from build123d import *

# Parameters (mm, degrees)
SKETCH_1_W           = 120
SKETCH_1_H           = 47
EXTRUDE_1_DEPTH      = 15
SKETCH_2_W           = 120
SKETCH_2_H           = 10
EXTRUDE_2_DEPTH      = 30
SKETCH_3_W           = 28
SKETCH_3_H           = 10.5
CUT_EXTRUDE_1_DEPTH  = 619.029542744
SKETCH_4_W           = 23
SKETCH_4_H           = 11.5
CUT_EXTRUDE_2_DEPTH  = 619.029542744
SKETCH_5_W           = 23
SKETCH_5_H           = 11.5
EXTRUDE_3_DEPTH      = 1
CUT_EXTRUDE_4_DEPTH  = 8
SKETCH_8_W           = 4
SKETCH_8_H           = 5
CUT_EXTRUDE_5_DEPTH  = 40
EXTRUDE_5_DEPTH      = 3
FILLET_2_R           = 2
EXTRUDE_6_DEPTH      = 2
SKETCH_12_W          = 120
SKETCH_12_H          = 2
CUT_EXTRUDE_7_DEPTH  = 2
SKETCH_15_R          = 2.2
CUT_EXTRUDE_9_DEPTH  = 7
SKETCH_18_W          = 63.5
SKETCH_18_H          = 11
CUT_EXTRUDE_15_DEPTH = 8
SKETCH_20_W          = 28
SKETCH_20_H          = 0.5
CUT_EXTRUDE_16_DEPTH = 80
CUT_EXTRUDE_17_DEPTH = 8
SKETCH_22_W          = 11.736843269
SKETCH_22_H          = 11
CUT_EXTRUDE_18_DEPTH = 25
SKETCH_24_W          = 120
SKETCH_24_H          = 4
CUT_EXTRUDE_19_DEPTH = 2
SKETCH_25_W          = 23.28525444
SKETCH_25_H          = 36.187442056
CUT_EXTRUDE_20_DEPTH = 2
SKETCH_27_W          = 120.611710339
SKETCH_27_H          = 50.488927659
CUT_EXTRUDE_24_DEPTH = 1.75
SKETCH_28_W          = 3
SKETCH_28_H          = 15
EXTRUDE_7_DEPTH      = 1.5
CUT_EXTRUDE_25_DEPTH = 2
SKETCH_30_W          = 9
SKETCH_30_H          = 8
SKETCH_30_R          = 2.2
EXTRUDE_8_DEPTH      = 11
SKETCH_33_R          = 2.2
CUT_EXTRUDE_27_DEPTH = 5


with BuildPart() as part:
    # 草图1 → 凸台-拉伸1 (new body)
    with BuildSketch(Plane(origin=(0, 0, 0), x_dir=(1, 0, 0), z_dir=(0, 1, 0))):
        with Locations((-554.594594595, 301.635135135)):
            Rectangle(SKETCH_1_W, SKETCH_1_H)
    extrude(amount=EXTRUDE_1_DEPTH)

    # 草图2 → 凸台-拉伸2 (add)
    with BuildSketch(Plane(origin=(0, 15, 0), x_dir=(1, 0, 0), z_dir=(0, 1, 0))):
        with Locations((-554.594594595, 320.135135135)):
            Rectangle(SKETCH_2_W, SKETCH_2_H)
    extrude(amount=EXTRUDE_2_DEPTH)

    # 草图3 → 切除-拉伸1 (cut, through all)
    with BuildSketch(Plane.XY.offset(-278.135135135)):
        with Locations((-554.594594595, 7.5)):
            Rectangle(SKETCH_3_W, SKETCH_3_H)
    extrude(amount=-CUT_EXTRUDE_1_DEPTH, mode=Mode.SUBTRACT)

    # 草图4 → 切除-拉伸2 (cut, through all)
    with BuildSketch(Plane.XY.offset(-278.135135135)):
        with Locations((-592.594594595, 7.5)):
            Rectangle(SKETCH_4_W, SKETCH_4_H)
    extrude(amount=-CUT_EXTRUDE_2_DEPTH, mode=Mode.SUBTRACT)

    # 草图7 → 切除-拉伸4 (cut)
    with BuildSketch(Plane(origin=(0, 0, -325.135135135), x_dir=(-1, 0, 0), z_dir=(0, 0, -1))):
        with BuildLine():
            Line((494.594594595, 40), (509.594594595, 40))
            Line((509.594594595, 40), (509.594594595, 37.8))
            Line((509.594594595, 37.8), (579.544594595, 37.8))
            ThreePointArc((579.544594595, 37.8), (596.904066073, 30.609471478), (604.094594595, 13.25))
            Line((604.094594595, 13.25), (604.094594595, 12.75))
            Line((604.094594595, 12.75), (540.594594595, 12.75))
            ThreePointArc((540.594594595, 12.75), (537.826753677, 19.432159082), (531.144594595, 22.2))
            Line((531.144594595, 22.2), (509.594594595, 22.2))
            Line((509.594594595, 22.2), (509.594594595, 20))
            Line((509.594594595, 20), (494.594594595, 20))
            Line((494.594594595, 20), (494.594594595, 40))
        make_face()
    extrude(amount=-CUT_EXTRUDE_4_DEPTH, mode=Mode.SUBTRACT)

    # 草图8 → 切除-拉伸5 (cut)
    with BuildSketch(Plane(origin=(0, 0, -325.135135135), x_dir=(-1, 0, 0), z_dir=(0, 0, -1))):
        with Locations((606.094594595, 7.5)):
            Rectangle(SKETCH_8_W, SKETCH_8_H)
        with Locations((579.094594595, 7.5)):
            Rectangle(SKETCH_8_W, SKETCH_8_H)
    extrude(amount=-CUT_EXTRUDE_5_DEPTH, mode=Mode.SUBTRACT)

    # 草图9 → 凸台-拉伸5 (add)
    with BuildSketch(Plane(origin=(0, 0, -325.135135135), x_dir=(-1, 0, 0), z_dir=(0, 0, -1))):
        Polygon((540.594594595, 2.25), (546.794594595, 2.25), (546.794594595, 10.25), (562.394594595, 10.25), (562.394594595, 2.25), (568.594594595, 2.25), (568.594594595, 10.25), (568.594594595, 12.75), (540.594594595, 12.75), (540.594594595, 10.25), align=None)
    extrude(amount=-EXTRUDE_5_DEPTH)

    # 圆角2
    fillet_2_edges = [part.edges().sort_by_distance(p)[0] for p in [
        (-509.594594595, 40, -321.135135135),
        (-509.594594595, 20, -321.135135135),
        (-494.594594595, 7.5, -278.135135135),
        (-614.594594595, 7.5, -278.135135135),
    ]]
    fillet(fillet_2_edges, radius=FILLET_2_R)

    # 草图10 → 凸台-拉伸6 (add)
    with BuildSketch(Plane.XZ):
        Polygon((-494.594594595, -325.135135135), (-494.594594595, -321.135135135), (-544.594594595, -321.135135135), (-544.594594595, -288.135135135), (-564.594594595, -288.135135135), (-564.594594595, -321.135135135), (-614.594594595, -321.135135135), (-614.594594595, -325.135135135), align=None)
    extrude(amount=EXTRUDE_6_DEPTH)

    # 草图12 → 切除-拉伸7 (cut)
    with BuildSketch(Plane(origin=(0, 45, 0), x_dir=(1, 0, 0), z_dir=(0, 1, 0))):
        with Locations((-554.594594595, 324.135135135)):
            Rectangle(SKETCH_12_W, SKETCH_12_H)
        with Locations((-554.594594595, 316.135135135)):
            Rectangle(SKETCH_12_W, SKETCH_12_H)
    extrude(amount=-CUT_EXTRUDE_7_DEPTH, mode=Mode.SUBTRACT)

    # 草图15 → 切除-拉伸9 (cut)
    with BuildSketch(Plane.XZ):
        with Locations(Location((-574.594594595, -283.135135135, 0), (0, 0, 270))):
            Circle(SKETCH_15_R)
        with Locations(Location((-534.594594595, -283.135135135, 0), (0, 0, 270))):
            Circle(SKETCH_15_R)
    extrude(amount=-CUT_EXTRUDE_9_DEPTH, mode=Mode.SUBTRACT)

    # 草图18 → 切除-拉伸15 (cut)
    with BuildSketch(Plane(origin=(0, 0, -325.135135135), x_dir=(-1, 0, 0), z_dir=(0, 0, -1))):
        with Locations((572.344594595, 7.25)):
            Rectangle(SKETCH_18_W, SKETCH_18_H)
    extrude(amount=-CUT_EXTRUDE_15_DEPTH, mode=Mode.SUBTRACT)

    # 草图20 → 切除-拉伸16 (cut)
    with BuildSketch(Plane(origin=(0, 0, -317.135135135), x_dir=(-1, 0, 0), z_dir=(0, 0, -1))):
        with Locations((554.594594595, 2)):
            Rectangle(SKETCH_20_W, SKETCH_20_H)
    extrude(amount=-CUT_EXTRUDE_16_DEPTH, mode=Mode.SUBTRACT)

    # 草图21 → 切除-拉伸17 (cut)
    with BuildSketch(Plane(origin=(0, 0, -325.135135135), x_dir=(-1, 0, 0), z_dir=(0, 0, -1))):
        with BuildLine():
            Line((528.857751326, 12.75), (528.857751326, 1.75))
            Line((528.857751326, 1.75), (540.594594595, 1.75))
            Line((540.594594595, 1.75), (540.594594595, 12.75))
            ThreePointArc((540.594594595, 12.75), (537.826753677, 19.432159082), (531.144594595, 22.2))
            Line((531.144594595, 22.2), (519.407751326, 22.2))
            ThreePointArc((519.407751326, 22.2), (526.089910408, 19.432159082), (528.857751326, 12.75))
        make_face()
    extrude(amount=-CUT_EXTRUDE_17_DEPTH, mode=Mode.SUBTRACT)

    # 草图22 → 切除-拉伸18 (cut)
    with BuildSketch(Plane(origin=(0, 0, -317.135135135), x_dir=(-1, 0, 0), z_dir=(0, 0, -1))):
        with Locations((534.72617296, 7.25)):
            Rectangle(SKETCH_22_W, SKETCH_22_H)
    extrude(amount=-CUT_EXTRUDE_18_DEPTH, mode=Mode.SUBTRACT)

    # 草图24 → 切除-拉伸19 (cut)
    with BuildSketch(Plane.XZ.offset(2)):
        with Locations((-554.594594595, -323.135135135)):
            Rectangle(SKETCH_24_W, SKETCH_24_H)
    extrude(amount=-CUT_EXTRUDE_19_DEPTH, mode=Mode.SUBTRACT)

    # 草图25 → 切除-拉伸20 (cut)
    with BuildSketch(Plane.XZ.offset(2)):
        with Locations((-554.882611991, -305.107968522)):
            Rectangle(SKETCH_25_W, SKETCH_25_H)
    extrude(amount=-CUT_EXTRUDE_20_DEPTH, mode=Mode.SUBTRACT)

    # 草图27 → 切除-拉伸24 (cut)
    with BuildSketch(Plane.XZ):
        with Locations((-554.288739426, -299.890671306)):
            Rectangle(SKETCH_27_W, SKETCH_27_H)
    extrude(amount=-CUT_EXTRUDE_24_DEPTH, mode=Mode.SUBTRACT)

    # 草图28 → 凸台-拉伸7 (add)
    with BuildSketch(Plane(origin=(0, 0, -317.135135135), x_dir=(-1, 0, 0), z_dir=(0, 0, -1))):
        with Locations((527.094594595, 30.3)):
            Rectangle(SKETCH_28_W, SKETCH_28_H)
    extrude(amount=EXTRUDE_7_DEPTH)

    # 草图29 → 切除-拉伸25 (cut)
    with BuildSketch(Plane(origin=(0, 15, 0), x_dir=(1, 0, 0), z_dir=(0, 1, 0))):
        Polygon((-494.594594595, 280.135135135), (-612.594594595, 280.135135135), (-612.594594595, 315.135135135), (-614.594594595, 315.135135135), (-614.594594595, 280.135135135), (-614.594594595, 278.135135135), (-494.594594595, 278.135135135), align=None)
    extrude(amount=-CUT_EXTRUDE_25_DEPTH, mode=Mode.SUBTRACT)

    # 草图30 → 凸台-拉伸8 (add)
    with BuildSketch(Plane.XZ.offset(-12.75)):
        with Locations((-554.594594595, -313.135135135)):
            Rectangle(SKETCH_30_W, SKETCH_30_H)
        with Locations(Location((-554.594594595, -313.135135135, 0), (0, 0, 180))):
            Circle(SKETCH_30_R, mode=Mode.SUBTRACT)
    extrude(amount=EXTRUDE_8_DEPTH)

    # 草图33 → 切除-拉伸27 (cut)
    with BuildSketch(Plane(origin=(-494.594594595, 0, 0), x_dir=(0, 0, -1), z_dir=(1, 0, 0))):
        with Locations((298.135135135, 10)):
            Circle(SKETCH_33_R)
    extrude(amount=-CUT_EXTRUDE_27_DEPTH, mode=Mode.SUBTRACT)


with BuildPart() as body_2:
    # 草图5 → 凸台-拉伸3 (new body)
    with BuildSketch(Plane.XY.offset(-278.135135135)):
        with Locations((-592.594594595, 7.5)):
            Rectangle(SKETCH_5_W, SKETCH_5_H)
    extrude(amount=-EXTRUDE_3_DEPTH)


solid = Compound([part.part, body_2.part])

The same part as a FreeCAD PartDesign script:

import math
import FreeCAD as App
import Part
import Sketcher

V = App.Vector


def edges_at(feature, points):
    """Names of the edges that pass closest to the given points."""
    edges = feature.Shape.Edges
    near = lambda p: min(range(len(edges)), key=lambda i: edges[i].distToShape(Part.Vertex(*p))[0])
    return sorted({f"Edge{near(p) + 1}" for p in points})

doc = App.newDocument("Part")
body = doc.addObject("PartDesign::Body", "Body")

sketch1 = body.newObject("Sketcher::SketchObject", "Sketch")
sketch1.AttachmentSupport = (doc.getObject("XZ_Plane"), [""])
sketch1.MapMode = "FlatFace"
sketch1.addGeometry(Part.LineSegment(V(-615, -325, 0), V(-615, -278, 0)), False)
sketch1.addGeometry(Part.LineSegment(V(-615, -278, 0), V(-495, -278, 0)), False)
sketch1.addGeometry(Part.LineSegment(V(-495, -278, 0), V(-495, -325, 0)), False)
sketch1.addGeometry(Part.LineSegment(V(-495, -325, 0), V(-615, -325, 0)), False)
sketch1.addConstraint(Sketcher.Constraint("Coincident", 0, 2, 1, 1))
sketch1.addConstraint(Sketcher.Constraint("Coincident", 1, 2, 2, 1))
sketch1.addConstraint(Sketcher.Constraint("Coincident", 2, 2, 3, 1))
sketch1.addConstraint(Sketcher.Constraint("Coincident", 3, 2, 0, 1))
sketch1.addConstraint(Sketcher.Constraint("Vertical", 0))
sketch1.addConstraint(Sketcher.Constraint("Horizontal", 1))
sketch1.addConstraint(Sketcher.Constraint("Vertical", 2))
sketch1.addConstraint(Sketcher.Constraint("Horizontal", 3))
sketch1.addConstraint(Sketcher.Constraint("DistanceX", 1, 1, 1, 2, 120.0))
sketch1.addConstraint(Sketcher.Constraint("DistanceY", 0, 1, 0, 2, 47.0))
sketch1.addConstraint(Sketcher.Constraint("DistanceX", 0, 2, -1, 1, 614.594595))
sketch1.addConstraint(Sketcher.Constraint("DistanceY", 0, 2, -1, 1, 278.135135))
pad1 = body.newObject("PartDesign::Pad", "Pad")
pad1.Profile = sketch1
pad1.Length = 15
pad1.Reversed = True

sketch2 = body.newObject("Sketcher::SketchObject", "Sketch001")
sketch2.AttachmentSupport = (doc.getObject("XZ_Plane"), [""])
sketch2.MapMode = "FlatFace"
sketch2.AttachmentOffset = App.Placement(V(0, 0, -15), App.Rotation())
sketch2.addGeometry(Part.LineSegment(V(-615, -325, 0), V(-615, -315, 0)), False)
sketch2.addGeometry(Part.LineSegment(V(-615, -315, 0), V(-495, -315, 0)), False)
sketch2.addGeometry(Part.LineSegment(V(-495, -315, 0), V(-495, -325, 0)), False)
sketch2.addGeometry(Part.LineSegment(V(-495, -325, 0), V(-615, -325, 0)), False)
sketch2.addConstraint(Sketcher.Constraint("Coincident", 0, 2, 1, 1))
sketch2.addConstraint(Sketcher.Constraint("Coincident", 1, 2, 2, 1))
sketch2.addConstraint(Sketcher.Constraint("Coincident", 2, 2, 3, 1))
sketch2.addConstraint(Sketcher.Constraint("Coincident", 3, 2, 0, 1))
sketch2.addConstraint(Sketcher.Constraint("Vertical", 0))
sketch2.addConstraint(Sketcher.Constraint("Horizontal", 1))
sketch2.addConstraint(Sketcher.Constraint("Vertical", 2))
sketch2.addConstraint(Sketcher.Constraint("Horizontal", 3))
sketch2.addConstraint(Sketcher.Constraint("DistanceX", 1, 1, 1, 2, 120.0))
sketch2.addConstraint(Sketcher.Constraint("DistanceY", 0, 1, 0, 2, 10.0))
sketch2.addConstraint(Sketcher.Constraint("DistanceX", 0, 2, -1, 1, 614.594595))
sketch2.addConstraint(Sketcher.Constraint("DistanceY", 0, 2, -1, 1, 315.135135))
pad2 = body.newObject("PartDesign::Pad", "Pad001")
pad2.Profile = sketch2
pad2.Length = 30
pad2.Reversed = True

sketch3 = body.newObject("Sketcher::SketchObject", "Sketch002")
sketch3.AttachmentSupport = (doc.getObject("XY_Plane"), [""])
sketch3.MapMode = "FlatFace"
sketch3.AttachmentOffset = App.Placement(V(0, 0, -278.135135), App.Rotation())
sketch3.addGeometry(Part.LineSegment(V(-569, 13, 0), V(-569, 2, 0)), False)
sketch3.addGeometry(Part.LineSegment(V(-569, 2, 0), V(-541, 2, 0)), False)
sketch3.addGeometry(Part.LineSegment(V(-541, 2, 0), V(-541, 13, 0)), False)
sketch3.addGeometry(Part.LineSegment(V(-541, 13, 0), V(-569, 13, 0)), False)
sketch3.addConstraint(Sketcher.Constraint("Coincident", 0, 2, 1, 1))
sketch3.addConstraint(Sketcher.Constraint("Coincident", 1, 2, 2, 1))
sketch3.addConstraint(Sketcher.Constraint("Coincident", 2, 2, 3, 1))
sketch3.addConstraint(Sketcher.Constraint("Coincident", 3, 2, 0, 1))
sketch3.addConstraint(Sketcher.Constraint("Vertical", 0))
sketch3.addConstraint(Sketcher.Constraint("Horizontal", 1))
sketch3.addConstraint(Sketcher.Constraint("Vertical", 2))
sketch3.addConstraint(Sketcher.Constraint("Horizontal", 3))
sketch3.addConstraint(Sketcher.Constraint("DistanceX", 1, 1, 1, 2, 28.0))
sketch3.addConstraint(Sketcher.Constraint("DistanceY", 0, 2, 0, 1, 10.5))
sketch3.addConstraint(Sketcher.Constraint("DistanceY", -1, 1, 0, 2, 2.25))
sketch3.addConstraint(Sketcher.Constraint("DistanceX", 0, 2, -1, 1, 568.594595))
pocket1 = body.newObject("PartDesign::Pocket", "Pocket")
pocket1.Profile = sketch3
pocket1.Type = "ThroughAll"

sketch4 = body.newObject("Sketcher::SketchObject", "Sketch003")
sketch4.AttachmentSupport = (doc.getObject("XY_Plane"), [""])
sketch4.MapMode = "FlatFace"
sketch4.AttachmentOffset = App.Placement(V(0, 0, -278.135135), App.Rotation())
sketch4.addGeometry(Part.LineSegment(V(-604, 13, 0), V(-604, 2, 0)), False)
sketch4.addGeometry(Part.LineSegment(V(-604, 2, 0), V(-581, 2, 0)), False)
sketch4.addGeometry(Part.LineSegment(V(-581, 2, 0), V(-581, 13, 0)), False)
sketch4.addGeometry(Part.LineSegment(V(-581, 13, 0), V(-604, 13, 0)), False)
sketch4.addConstraint(Sketcher.Constraint("Coincident", 0, 2, 1, 1))
sketch4.addConstraint(Sketcher.Constraint("Coincident", 1, 2, 2, 1))
sketch4.addConstraint(Sketcher.Constraint("Coincident", 2, 2, 3, 1))
sketch4.addConstraint(Sketcher.Constraint("Coincident", 3, 2, 0, 1))
sketch4.addConstraint(Sketcher.Constraint("Vertical", 0))
sketch4.addConstraint(Sketcher.Constraint("Horizontal", 1))
sketch4.addConstraint(Sketcher.Constraint("Vertical", 2))
sketch4.addConstraint(Sketcher.Constraint("Horizontal", 3))
sketch4.addConstraint(Sketcher.Constraint("DistanceX", 1, 1, 1, 2, 23.0))
sketch4.addConstraint(Sketcher.Constraint("DistanceY", 0, 2, 0, 1, 11.5))
sketch4.addConstraint(Sketcher.Constraint("DistanceY", -1, 1, 0, 2, 1.75))
sketch4.addConstraint(Sketcher.Constraint("DistanceX", 0, 2, -1, 1, 604.094595))
pocket2 = body.newObject("PartDesign::Pocket", "Pocket001")
pocket2.Profile = sketch4
pocket2.Type = "ThroughAll"

sketch5 = body.newObject("Sketcher::SketchObject", "Sketch004")
sketch5.AttachmentSupport = (doc.getObject("XY_Plane"), [""])
sketch5.MapMode = "FlatFace"
sketch5.AttachmentOffset = App.Placement(V(0, 0, -325.135135), App.Rotation())
sketch5.addGeometry(Part.LineSegment(V(-509.6, 40, 0), V(-494.6, 40, 0)), False)
sketch5.addGeometry(Part.LineSegment(V(-494.6, 40, 0), V(-494.6, 20, 0)), False)
sketch5.addGeometry(Part.LineSegment(V(-494.6, 20, 0), V(-509.6, 20, 0)), False)
sketch5.addGeometry(Part.LineSegment(V(-509.6, 20, 0), V(-509.6, 22.2, 0)), False)
sketch5.addGeometry(Part.LineSegment(V(-509.6, 22.2, 0), V(-531.1, 22.2, 0)), False)
sketch5.addGeometry(Part.ArcOfCircle(Part.Circle(V(-531.1, 12.7, 0), V(0, 0, 1), 9.5), math.radians(90), math.radians(180)), False)
sketch5.addGeometry(Part.LineSegment(V(-540.6, 12.8, 0), V(-604.1, 12.8, 0)), False)
sketch5.addGeometry(Part.LineSegment(V(-604.1, 12.8, 0), V(-604.1, 13.2, 0)), False)
sketch5.addGeometry(Part.ArcOfCircle(Part.Circle(V(-579.5, 13.2, 0), V(0, 0, 1), 24.6), math.radians(90), math.radians(180)), False)
sketch5.addGeometry(Part.LineSegment(V(-579.5, 37.8, 0), V(-509.6, 37.8, 0)), False)
sketch5.addGeometry(Part.LineSegment(V(-509.6, 37.8, 0), V(-509.6, 40, 0)), False)
sketch5.addConstraint(Sketcher.Constraint("Coincident", 0, 2, 1, 1))
sketch5.addConstraint(Sketcher.Constraint("Coincident", 1, 2, 2, 1))
sketch5.addConstraint(Sketcher.Constraint("Coincident", 2, 2, 3, 1))
sketch5.addConstraint(Sketcher.Constraint("Coincident", 3, 2, 4, 1))
sketch5.addConstraint(Sketcher.Constraint("Tangent", 4, 2, 5, 1))
sketch5.addConstraint(Sketcher.Constraint("Coincident", 5, 2, 6, 1))
sketch5.addConstraint(Sketcher.Constraint("Coincident", 6, 2, 7, 1))
sketch5.addConstraint(Sketcher.Constraint("Tangent", 7, 2, 8, 2))
sketch5.addConstraint(Sketcher.Constraint("Tangent", 8, 1, 9, 1))
sketch5.addConstraint(Sketcher.Constraint("Coincident", 9, 2, 10, 1))
sketch5.addConstraint(Sketcher.Constraint("Coincident", 10, 2, 0, 1))
sketch5.addConstraint(Sketcher.Constraint("Horizontal", 0))
sketch5.addConstraint(Sketcher.Constraint("Vertical", 1))
sketch5.addConstraint(Sketcher.Constraint("Horizontal", 2))
sketch5.addConstraint(Sketcher.Constraint("Vertical", 3))
sketch5.addConstraint(Sketcher.Constraint("Horizontal", 4))
sketch5.addConstraint(Sketcher.Constraint("Horizontal", 6))
sketch5.addConstraint(Sketcher.Constraint("Vertical", 7))
sketch5.addConstraint(Sketcher.Constraint("Horizontal", 9))
sketch5.addConstraint(Sketcher.Constraint("Vertical", 10))
sketch5.addConstraint(Sketcher.Constraint("Vertical", 3, 2, 9, 2))
sketch5.addConstraint(Sketcher.Constraint("Equal", 3, 10))
sketch5.addConstraint(Sketcher.Constraint("DistanceX", 0, 1, 0, 2, 15.0))
sketch5.addConstraint(Sketcher.Constraint("DistanceY", 1, 2, 1, 1, 20.0))
sketch5.addConstraint(Sketcher.Constraint("Radius", 5, 9.45))
sketch5.addConstraint(Sketcher.Constraint("Radius", 8, 24.55))
sketch5.addConstraint(Sketcher.Constraint("DistanceX", 6, 2, 6, 1, 63.5))
sketch5.addConstraint(Sketcher.Constraint("DistanceY", 3, 1, 3, 2, 2.2))
sketch5.addConstraint(Sketcher.Constraint("DistanceY", 7, 1, 7, 2, 0.5))
sketch5.addConstraint(Sketcher.Constraint("DistanceY", -1, 1, 0, 2, 40.0))
sketch5.addConstraint(Sketcher.Constraint("DistanceX", 5, 2, 2, 2, 31.0))
sketch5.addConstraint(Sketcher.Constraint("DistanceX", 5, 3, -1, 1, 531.144595))
pocket3 = body.newObject("PartDesign::Pocket", "Pocket002")
pocket3.Profile = sketch5
pocket3.Length = 8
pocket3.Reversed = True

sketch6 = body.newObject("Sketcher::SketchObject", "Sketch005")
sketch6.AttachmentSupport = (doc.getObject("XY_Plane"), [""])
sketch6.MapMode = "FlatFace"
sketch6.AttachmentOffset = App.Placement(V(0, 0, -325.135135), App.Rotation())
sketch6.addGeometry(Part.LineSegment(V(-604.1, 10, 0), V(-604.1, 5, 0)), False)
sketch6.addGeometry(Part.LineSegment(V(-604.1, 5, 0), V(-608.1, 5, 0)), False)
sketch6.addGeometry(Part.LineSegment(V(-608.1, 5, 0), V(-608.1, 10, 0)), False)
sketch6.addGeometry(Part.LineSegment(V(-608.1, 10, 0), V(-604.1, 10, 0)), False)
sketch6.addGeometry(Part.LineSegment(V(-577.1, 10, 0), V(-577.1, 5, 0)), False)
sketch6.addGeometry(Part.LineSegment(V(-577.1, 5, 0), V(-581.1, 5, 0)), False)
sketch6.addGeometry(Part.LineSegment(V(-581.1, 5, 0), V(-581.1, 10, 0)), False)
sketch6.addGeometry(Part.LineSegment(V(-581.1, 10, 0), V(-577.1, 10, 0)), False)
sketch6.addConstraint(Sketcher.Constraint("Coincident", 0, 2, 1, 1))
sketch6.addConstraint(Sketcher.Constraint("Coincident", 1, 2, 2, 1))
sketch6.addConstraint(Sketcher.Constraint("Coincident", 2, 2, 3, 1))
sketch6.addConstraint(Sketcher.Constraint("Coincident", 3, 2, 0, 1))
sketch6.addConstraint(Sketcher.Constraint("Coincident", 4, 2, 5, 1))
sketch6.addConstraint(Sketcher.Constraint("Coincident", 5, 2, 6, 1))
sketch6.addConstraint(Sketcher.Constraint("Coincident", 6, 2, 7, 1))
sketch6.addConstraint(Sketcher.Constraint("Coincident", 7, 2, 4, 1))
sketch6.addConstraint(Sketcher.Constraint("Vertical", 0))
sketch6.addConstraint(Sketcher.Constraint("Horizontal", 1))
sketch6.addConstraint(Sketcher.Constraint("Vertical", 2))
sketch6.addConstraint(Sketcher.Constraint("Horizontal", 3))
sketch6.addConstraint(Sketcher.Constraint("Vertical", 4))
sketch6.addConstraint(Sketcher.Constraint("Horizontal", 5))
sketch6.addConstraint(Sketcher.Constraint("Vertical", 6))
sketch6.addConstraint(Sketcher.Constraint("Horizontal", 7))
sketch6.addConstraint(Sketcher.Constraint("Horizontal", 1, 2, 4, 2))
sketch6.addConstraint(Sketcher.Constraint("Horizontal", 3, 2, 6, 2))
sketch6.addConstraint(Sketcher.Constraint("Equal", 3, 5))
sketch6.addConstraint(Sketcher.Constraint("DistanceX", 1, 2, 1, 1, 4.0))
sketch6.addConstraint(Sketcher.Constraint("DistanceY", 0, 2, 0, 1, 5.0))
sketch6.addConstraint(Sketcher.Constraint("DistanceY", -1, 1, 0, 2, 5.0))
sketch6.addConstraint(Sketcher.Constraint("DistanceX", 0, 2, 4, 2, 27.0))
sketch6.addConstraint(Sketcher.Constraint("DistanceX", 0, 2, -1, 1, 604.094595))
pocket4 = body.newObject("PartDesign::Pocket", "Pocket003")
pocket4.Profile = sketch6
pocket4.Length = 40
pocket4.Reversed = True

sketch7 = body.newObject("Sketcher::SketchObject", "Sketch006")
sketch7.AttachmentSupport = (doc.getObject("XY_Plane"), [""])
sketch7.MapMode = "FlatFace"
sketch7.AttachmentOffset = App.Placement(V(0, 0, -325.135135), App.Rotation())
sketch7.addGeometry(Part.LineSegment(V(-541, 2, 0), V(-547, 2, 0)), False)
sketch7.addGeometry(Part.LineSegment(V(-547, 2, 0), V(-547, 10, 0)), False)
sketch7.addGeometry(Part.LineSegment(V(-547, 10, 0), V(-562, 10, 0)), False)
sketch7.addGeometry(Part.LineSegment(V(-562, 10, 0), V(-562, 2, 0)), False)
sketch7.addGeometry(Part.LineSegment(V(-562, 2, 0), V(-569, 2, 0)), False)
sketch7.addGeometry(Part.LineSegment(V(-569, 2, 0), V(-569, 13, 0)), False)
sketch7.addGeometry(Part.LineSegment(V(-569, 13, 0), V(-541, 13, 0)), False)
sketch7.addGeometry(Part.LineSegment(V(-541, 13, 0), V(-541, 2, 0)), False)
sketch7.addConstraint(Sketcher.Constraint("Coincident", 0, 2, 1, 1))
sketch7.addConstraint(Sketcher.Constraint("Coincident", 1, 2, 2, 1))
sketch7.addConstraint(Sketcher.Constraint("Coincident", 2, 2, 3, 1))
sketch7.addConstraint(Sketcher.Constraint("Coincident", 3, 2, 4, 1))
sketch7.addConstraint(Sketcher.Constraint("Coincident", 4, 2, 5, 1))
sketch7.addConstraint(Sketcher.Constraint("Coincident", 5, 2, 6, 1))
sketch7.addConstraint(Sketcher.Constraint("Coincident", 6, 2, 7, 1))
sketch7.addConstraint(Sketcher.Constraint("Coincident", 7, 2, 0, 1))
sketch7.addConstraint(Sketcher.Constraint("Horizontal", 0))
sketch7.addConstraint(Sketcher.Constraint("Vertical", 1))
sketch7.addConstraint(Sketcher.Constraint("Horizontal", 2))
sketch7.addConstraint(Sketcher.Constraint("Vertical", 3))
sketch7.addConstraint(Sketcher.Constraint("Horizontal", 4))
sketch7.addConstraint(Sketcher.Constraint("Vertical", 5))
sketch7.addConstraint(Sketcher.Constraint("Horizontal", 6))
sketch7.addConstraint(Sketcher.Constraint("Vertical", 7))
sketch7.addConstraint(Sketcher.Constraint("Horizontal", 0, 2, 3, 2))
sketch7.addConstraint(Sketcher.Constraint("Equal", 0, 4))
sketch7.addConstraint(Sketcher.Constraint("DistanceX", 6, 1, 6, 2, 28.0))
sketch7.addConstraint(Sketcher.Constraint("DistanceY", 1, 1, 1, 2, 8.0))
sketch7.addConstraint(Sketcher.Constraint("DistanceX", 0, 2, 0, 1, 6.2))
sketch7.addConstraint(Sketcher.Constraint("DistanceY", 5, 1, 5, 2, 10.5))
sketch7.addConstraint(Sketcher.Constraint("DistanceY", -1, 1, 0, 2, 2.25))
sketch7.addConstraint(Sketcher.Constraint("DistanceX", 0, 2, -1, 1, 546.794595))
pad3 = body.newObject("PartDesign::Pad", "Pad002")
pad3.Profile = sketch7
pad3.Length = 3
doc.recompute()

fillet = body.newObject("PartDesign::Fillet", "Fillet")
fillet.Base = (pad3, edges_at(pad3, [
    (-509.595, 40, -321.135),
    (-509.595, 20, -321.135),
    (-494.595, 7.5, -278.135),
    (-614.595, 7.5, -278.135),
]))
fillet.Radius = 2

sketch8 = body.newObject("Sketcher::SketchObject", "Sketch007")
sketch8.AttachmentSupport = (doc.getObject("XZ_Plane"), [""])
sketch8.MapMode = "FlatFace"
sketch8.addGeometry(Part.LineSegment(V(-494.6, -325.1, 0), V(-494.6, -321.1, 0)), False)
sketch8.addGeometry(Part.LineSegment(V(-494.6, -321.1, 0), V(-544.6, -321.1, 0)), False)
sketch8.addGeometry(Part.LineSegment(V(-544.6, -321.1, 0), V(-544.6, -288.1, 0)), False)
sketch8.addGeometry(Part.LineSegment(V(-544.6, -288.1, 0), V(-564.6, -288.1, 0)), False)
sketch8.addGeometry(Part.LineSegment(V(-564.6, -288.1, 0), V(-564.6, -321.1, 0)), False)
sketch8.addGeometry(Part.LineSegment(V(-564.6, -321.1, 0), V(-614.6, -321.1, 0)), False)
sketch8.addGeometry(Part.LineSegment(V(-614.6, -321.1, 0), V(-614.6, -325.1, 0)), False)
sketch8.addGeometry(Part.LineSegment(V(-614.6, -325.1, 0), V(-494.6, -325.1, 0)), False)
sketch8.addConstraint(Sketcher.Constraint("Coincident", 0, 2, 1, 1))
sketch8.addConstraint(Sketcher.Constraint("Coincident", 1, 2, 2, 1))
sketch8.addConstraint(Sketcher.Constraint("Coincident", 2, 2, 3, 1))
sketch8.addConstraint(Sketcher.Constraint("Coincident", 3, 2, 4, 1))
sketch8.addConstraint(Sketcher.Constraint("Coincident", 4, 2, 5, 1))
sketch8.addConstraint(Sketcher.Constraint("Coincident", 5, 2, 6, 1))
sketch8.addConstraint(Sketcher.Constraint("Coincident", 6, 2, 7, 1))
sketch8.addConstraint(Sketcher.Constraint("Coincident", 7, 2, 0, 1))
sketch8.addConstraint(Sketcher.Constraint("Vertical", 0))
sketch8.addConstraint(Sketcher.Constraint("Horizontal", 1))
sketch8.addConstraint(Sketcher.Constraint("Vertical", 2))
sketch8.addConstraint(Sketcher.Constraint("Horizontal", 3))
sketch8.addConstraint(Sketcher.Constraint("Vertical", 4))
sketch8.addConstraint(Sketcher.Constraint("Horizontal", 5))
sketch8.addConstraint(Sketcher.Constraint("Vertical", 6))
sketch8.addConstraint(Sketcher.Constraint("Horizontal", 7))
sketch8.addConstraint(Sketcher.Constraint("Horizontal", 1, 2, 4, 2))
sketch8.addConstraint(Sketcher.Constraint("Equal", 1, 5))
sketch8.addConstraint(Sketcher.Constraint("DistanceX", 1, 2, 1, 1, 50.0))
sketch8.addConstraint(Sketcher.Constraint("DistanceX", 3, 2, 3, 1, 20.0))
sketch8.addConstraint(Sketcher.Constraint("DistanceY", 0, 1, 0, 2, 4.0))
sketch8.addConstraint(Sketcher.Constraint("DistanceY", 2, 1, 2, 2, 33.0))
sketch8.addConstraint(Sketcher.Constraint("DistanceX", 0, 2, -1, 1, 494.594595))
sketch8.addConstraint(Sketcher.Constraint("DistanceY", 0, 2, -1, 1, 321.135135))
pad4 = body.newObject("PartDesign::Pad", "Pad003")
pad4.Profile = sketch8
pad4.Length = 2

sketch9 = body.newObject("Sketcher::SketchObject", "Sketch008")
sketch9.AttachmentSupport = (doc.getObject("XZ_Plane"), [""])
sketch9.MapMode = "FlatFace"
sketch9.AttachmentOffset = App.Placement(V(0, 0, -45), App.Rotation())
sketch9.addGeometry(Part.LineSegment(V(-614.6, -325.1, 0), V(-614.6, -323.1, 0)), False)
sketch9.addGeometry(Part.LineSegment(V(-614.6, -323.1, 0), V(-494.6, -323.1, 0)), False)
sketch9.addGeometry(Part.LineSegment(V(-494.6, -323.1, 0), V(-494.6, -325.1, 0)), False)
sketch9.addGeometry(Part.LineSegment(V(-494.6, -325.1, 0), V(-614.6, -325.1, 0)), False)
sketch9.addGeometry(Part.LineSegment(V(-614.6, -317.1, 0), V(-614.6, -315.1, 0)), False)
sketch9.addGeometry(Part.LineSegment(V(-614.6, -315.1, 0), V(-494.6, -315.1, 0)), False)
sketch9.addGeometry(Part.LineSegment(V(-494.6, -315.1, 0), V(-494.6, -317.1, 0)), False)
sketch9.addGeometry(Part.LineSegment(V(-494.6, -317.1, 0), V(-614.6, -317.1, 0)), False)
sketch9.addConstraint(Sketcher.Constraint("Coincident", 0, 2, 1, 1))
sketch9.addConstraint(Sketcher.Constraint("Coincident", 1, 2, 2, 1))
sketch9.addConstraint(Sketcher.Constraint("Coincident", 2, 2, 3, 1))
sketch9.addConstraint(Sketcher.Constraint("Coincident", 3, 2, 0, 1))
sketch9.addConstraint(Sketcher.Constraint("Coincident", 4, 2, 5, 1))
sketch9.addConstraint(Sketcher.Constraint("Coincident", 5, 2, 6, 1))
sketch9.addConstraint(Sketcher.Constraint("Coincident", 6, 2, 7, 1))
sketch9.addConstraint(Sketcher.Constraint("Coincident", 7, 2, 4, 1))
sketch9.addConstraint(Sketcher.Constraint("Vertical", 0))
sketch9.addConstraint(Sketcher.Constraint("Horizontal", 1))
sketch9.addConstraint(Sketcher.Constraint("Vertical", 2))
sketch9.addConstraint(Sketcher.Constraint("Horizontal", 3))
sketch9.addConstraint(Sketcher.Constraint("Vertical", 4))
sketch9.addConstraint(Sketcher.Constraint("Horizontal", 5))
sketch9.addConstraint(Sketcher.Constraint("Vertical", 6))
sketch9.addConstraint(Sketcher.Constraint("Horizontal", 7))
sketch9.addConstraint(Sketcher.Constraint("Vertical", 3, 2, 4, 2))
sketch9.addConstraint(Sketcher.Constraint("Vertical", 2, 2, 5, 2))
sketch9.addConstraint(Sketcher.Constraint("Equal", 2, 4))
sketch9.addConstraint(Sketcher.Constraint("DistanceX", 1, 1, 1, 2, 120.0))
sketch9.addConstraint(Sketcher.Constraint("DistanceY", 0, 1, 0, 2, 2.0))
sketch9.addConstraint(Sketcher.Constraint("DistanceY", 0, 2, 4, 2, 8.0))
sketch9.addConstraint(Sketcher.Constraint("DistanceX", 0, 2, -1, 1, 614.594595))
sketch9.addConstraint(Sketcher.Constraint("DistanceY", 0, 2, -1, 1, 323.135135))
pocket5 = body.newObject("PartDesign::Pocket", "Pocket004")
pocket5.Profile = sketch9
pocket5.Length = 2
pocket5.Reversed = True

sketch10 = body.newObject("Sketcher::SketchObject", "Sketch009")
sketch10.AttachmentSupport = (doc.getObject("XZ_Plane"), [""])
sketch10.MapMode = "FlatFace"
sketch10.addGeometry(Part.Circle(V(-574.6, -283.1, 0), V(0, 0, 1), 2.2), False)
sketch10.addGeometry(Part.Circle(V(-534.6, -283.1, 0), V(0, 0, 1), 2.2), False)
sketch10.addConstraint(Sketcher.Constraint("Equal", 0, 1))
sketch10.addConstraint(Sketcher.Constraint("Horizontal", 0, 3, 1, 3))
sketch10.addConstraint(Sketcher.Constraint("Diameter", 0, 4.4))
sketch10.addConstraint(Sketcher.Constraint("DistanceX", 0, 3, 1, 3, 40.0))
sketch10.addConstraint(Sketcher.Constraint("DistanceX", 0, 3, -1, 1, 574.594595))
sketch10.addConstraint(Sketcher.Constraint("DistanceY", 0, 3, -1, 1, 283.135135))
pocket6 = body.newObject("PartDesign::Pocket", "Pocket005")
pocket6.Profile = sketch10
pocket6.Length = 7

sketch11 = body.newObject("Sketcher::SketchObject", "Sketch010")
sketch11.AttachmentSupport = (doc.getObject("XY_Plane"), [""])
sketch11.MapMode = "FlatFace"
sketch11.AttachmentOffset = App.Placement(V(0, 0, -325.135135), App.Rotation())
sketch11.addGeometry(Part.LineSegment(V(-541, 13, 0), V(-541, 2, 0)), False)
sketch11.addGeometry(Part.LineSegment(V(-541, 2, 0), V(-604, 2, 0)), False)
sketch11.addGeometry(Part.LineSegment(V(-604, 2, 0), V(-604, 13, 0)), False)
sketch11.addGeometry(Part.LineSegment(V(-604, 13, 0), V(-541, 13, 0)), False)
sketch11.addConstraint(Sketcher.Constraint("Coincident", 0, 2, 1, 1))
sketch11.addConstraint(Sketcher.Constraint("Coincident", 1, 2, 2, 1))
sketch11.addConstraint(Sketcher.Constraint("Coincident", 2, 2, 3, 1))
sketch11.addConstraint(Sketcher.Constraint("Coincident", 3, 2, 0, 1))
sketch11.addConstraint(Sketcher.Constraint("Vertical", 0))
sketch11.addConstraint(Sketcher.Constraint("Horizontal", 1))
sketch11.addConstraint(Sketcher.Constraint("Vertical", 2))
sketch11.addConstraint(Sketcher.Constraint("Horizontal", 3))
sketch11.addConstraint(Sketcher.Constraint("DistanceY", 0, 2, 0, 1, 11.0))
sketch11.addConstraint(Sketcher.Constraint("DistanceX", 1, 2, 1, 1, 63.5))
sketch11.addConstraint(Sketcher.Constraint("DistanceY", -1, 1, 0, 2, 1.75))
sketch11.addConstraint(Sketcher.Constraint("DistanceX", 0, 2, -1, 1, 540.594595))
pocket7 = body.newObject("PartDesign::Pocket", "Pocket006")
pocket7.Profile = sketch11
pocket7.Length = 8
pocket7.Reversed = True

sketch12 = body.newObject("Sketcher::SketchObject", "Sketch011")
sketch12.AttachmentSupport = (doc.getObject("XY_Plane"), [""])
sketch12.MapMode = "FlatFace"
sketch12.AttachmentOffset = App.Placement(V(0, 0, -317.135135), App.Rotation())
sketch12.addGeometry(Part.LineSegment(V(-540.6, 2.2, 0), V(-540.6, 1.8, 0)), False)
sketch12.addGeometry(Part.LineSegment(V(-540.6, 1.8, 0), V(-568.6, 1.8, 0)), False)
sketch12.addGeometry(Part.LineSegment(V(-568.6, 1.8, 0), V(-568.6, 2.2, 0)), False)
sketch12.addGeometry(Part.LineSegment(V(-568.6, 2.2, 0), V(-540.6, 2.2, 0)), False)
sketch12.addConstraint(Sketcher.Constraint("Coincident", 0, 2, 1, 1))
sketch12.addConstraint(Sketcher.Constraint("Coincident", 1, 2, 2, 1))
sketch12.addConstraint(Sketcher.Constraint("Coincident", 2, 2, 3, 1))
sketch12.addConstraint(Sketcher.Constraint("Coincident", 3, 2, 0, 1))
sketch12.addConstraint(Sketcher.Constraint("Vertical", 0))
sketch12.addConstraint(Sketcher.Constraint("Horizontal", 1))
sketch12.addConstraint(Sketcher.Constraint("Vertical", 2))
sketch12.addConstraint(Sketcher.Constraint("Horizontal", 3))
sketch12.addConstraint(Sketcher.Constraint("DistanceX", 1, 2, 1, 1, 28.0))
sketch12.addConstraint(Sketcher.Constraint("DistanceY", 0, 2, 0, 1, 0.5))
sketch12.addConstraint(Sketcher.Constraint("DistanceY", -1, 1, 0, 2, 1.75))
sketch12.addConstraint(Sketcher.Constraint("DistanceX", 0, 2, -1, 1, 540.594595))
pocket8 = body.newObject("PartDesign::Pocket", "Pocket007")
pocket8.Profile = sketch12
pocket8.Length = 80
pocket8.Reversed = True

sketch13 = body.newObject("Sketcher::SketchObject", "Sketch012")
sketch13.AttachmentSupport = (doc.getObject("XY_Plane"), [""])
sketch13.MapMode = "FlatFace"
sketch13.AttachmentOffset = App.Placement(V(0, 0, -325.135135), App.Rotation())
sketch13.addGeometry(Part.LineSegment(V(-529, 13, 0), V(-529, 2, 0)), False)
sketch13.addGeometry(Part.LineSegment(V(-529, 2, 0), V(-541, 2, 0)), False)
sketch13.addGeometry(Part.LineSegment(V(-541, 2, 0), V(-541, 13, 0)), False)
sketch13.addGeometry(Part.ArcOfCircle(Part.Circle(V(-531, 13, 0), V(0, 0, 1), 9), math.radians(90), math.radians(180)), False)
sketch13.addGeometry(Part.LineSegment(V(-531, 22, 0), V(-519, 22, 0)), False)
sketch13.addGeometry(Part.ArcOfCircle(Part.Circle(V(-519, 13, 0), V(0, 0, 1), 9), math.radians(90), math.radians(180)), False)
sketch13.addConstraint(Sketcher.Constraint("Coincident", 0, 2, 1, 1))
sketch13.addConstraint(Sketcher.Constraint("Coincident", 1, 2, 2, 1))
sketch13.addConstraint(Sketcher.Constraint("Tangent", 2, 2, 3, 2))
sketch13.addConstraint(Sketcher.Constraint("Tangent", 3, 1, 4, 1))
sketch13.addConstraint(Sketcher.Constraint("Tangent", 4, 2, 5, 1))
sketch13.addConstraint(Sketcher.Constraint("Tangent", 5, 2, 0, 1))
sketch13.addConstraint(Sketcher.Constraint("Vertical", 0))
sketch13.addConstraint(Sketcher.Constraint("Horizontal", 1))
sketch13.addConstraint(Sketcher.Constraint("Vertical", 2))
sketch13.addConstraint(Sketcher.Constraint("Horizontal", 4))
sketch13.addConstraint(Sketcher.Constraint("Equal", 3, 5))
sketch13.addConstraint(Sketcher.Constraint("DistanceY", 0, 2, 0, 1, 11.0))
sketch13.addConstraint(Sketcher.Constraint("Radius", 3, 9.45))
sketch13.addConstraint(Sketcher.Constraint("DistanceY", -1, 1, 3, 1, 22.2))
sketch13.addConstraint(Sketcher.Constraint("DistanceX", 1, 2, 1, 1, 11.736843))
sketch13.addConstraint(Sketcher.Constraint("DistanceX", 5, 3, -1, 1, 519.407751))
pocket9 = body.newObject("PartDesign::Pocket", "Pocket008")
pocket9.Profile = sketch13
pocket9.Length = 8
pocket9.Reversed = True

sketch14 = body.newObject("Sketcher::SketchObject", "Sketch013")
sketch14.AttachmentSupport = (doc.getObject("XY_Plane"), [""])
sketch14.MapMode = "FlatFace"
sketch14.AttachmentOffset = App.Placement(V(0, 0, -317.135135), App.Rotation())
sketch14.addGeometry(Part.LineSegment(V(-529, 13, 0), V(-529, 2, 0)), False)
sketch14.addGeometry(Part.LineSegment(V(-529, 2, 0), V(-541, 2, 0)), False)
sketch14.addGeometry(Part.LineSegment(V(-541, 2, 0), V(-541, 13, 0)), False)
sketch14.addGeometry(Part.LineSegment(V(-541, 13, 0), V(-529, 13, 0)), False)
sketch14.addConstraint(Sketcher.Constraint("Coincident", 0, 2, 1, 1))
sketch14.addConstraint(Sketcher.Constraint("Coincident", 1, 2, 2, 1))
sketch14.addConstraint(Sketcher.Constraint("Coincident", 2, 2, 3, 1))
sketch14.addConstraint(Sketcher.Constraint("Coincident", 3, 2, 0, 1))
sketch14.addConstraint(Sketcher.Constraint("Vertical", 0))
sketch14.addConstraint(Sketcher.Constraint("Horizontal", 1))
sketch14.addConstraint(Sketcher.Constraint("Vertical", 2))
sketch14.addConstraint(Sketcher.Constraint("Horizontal", 3))
sketch14.addConstraint(Sketcher.Constraint("DistanceY", 0, 2, 0, 1, 11.0))
sketch14.addConstraint(Sketcher.Constraint("DistanceY", -1, 1, 0, 2, 1.75))
sketch14.addConstraint(Sketcher.Constraint("DistanceX", 1, 2, 1, 1, 11.736843))
sketch14.addConstraint(Sketcher.Constraint("DistanceX", 0, 2, -1, 1, 528.857751))
pocket10 = body.newObject("PartDesign::Pocket", "Pocket009")
pocket10.Profile = sketch14
pocket10.Length = 25
pocket10.Reversed = True

sketch15 = body.newObject("Sketcher::SketchObject", "Sketch014")
sketch15.AttachmentSupport = (doc.getObject("XZ_Plane"), [""])
sketch15.MapMode = "FlatFace"
sketch15.AttachmentOffset = App.Placement(V(0, 0, 2), App.Rotation())
sketch15.addGeometry(Part.LineSegment(V(-614.6, -321.1, 0), V(-614.6, -325.1, 0)), False)
sketch15.addGeometry(Part.LineSegment(V(-614.6, -325.1, 0), V(-494.6, -325.1, 0)), False)
sketch15.addGeometry(Part.LineSegment(V(-494.6, -325.1, 0), V(-494.6, -321.1, 0)), False)
sketch15.addGeometry(Part.LineSegment(V(-494.6, -321.1, 0), V(-614.6, -321.1, 0)), False)
sketch15.addConstraint(Sketcher.Constraint("Coincident", 0, 2, 1, 1))
sketch15.addConstraint(Sketcher.Constraint("Coincident", 1, 2, 2, 1))
sketch15.addConstraint(Sketcher.Constraint("Coincident", 2, 2, 3, 1))
sketch15.addConstraint(Sketcher.Constraint("Coincident", 3, 2, 0, 1))
sketch15.addConstraint(Sketcher.Constraint("Vertical", 0))
sketch15.addConstraint(Sketcher.Constraint("Horizontal", 1))
sketch15.addConstraint(Sketcher.Constraint("Vertical", 2))
sketch15.addConstraint(Sketcher.Constraint("Horizontal", 3))
sketch15.addConstraint(Sketcher.Constraint("DistanceX", 1, 1, 1, 2, 120.0))
sketch15.addConstraint(Sketcher.Constraint("DistanceY", 0, 2, 0, 1, 4.0))
sketch15.addConstraint(Sketcher.Constraint("DistanceX", 0, 2, -1, 1, 614.594595))
sketch15.addConstraint(Sketcher.Constraint("DistanceY", 0, 2, -1, 1, 325.135135))
pocket11 = body.newObject("PartDesign::Pocket", "Pocket010")
pocket11.Profile = sketch15
pocket11.Length = 2

sketch16 = body.newObject("Sketcher::SketchObject", "Sketch015")
sketch16.AttachmentSupport = (doc.getObject("XZ_Plane"), [""])
sketch16.MapMode = "FlatFace"
sketch16.AttachmentOffset = App.Placement(V(0, 0, 2), App.Rotation())
sketch16.addGeometry(Part.LineSegment(V(-567, -287, 0), V(-567, -323, 0)), False)
sketch16.addGeometry(Part.LineSegment(V(-567, -323, 0), V(-543, -323, 0)), False)
sketch16.addGeometry(Part.LineSegment(V(-543, -323, 0), V(-543, -287, 0)), False)
sketch16.addGeometry(Part.LineSegment(V(-543, -287, 0), V(-567, -287, 0)), False)
sketch16.addConstraint(Sketcher.Constraint("Coincident", 0, 2, 1, 1))
sketch16.addConstraint(Sketcher.Constraint("Coincident", 1, 2, 2, 1))
sketch16.addConstraint(Sketcher.Constraint("Coincident", 2, 2, 3, 1))
sketch16.addConstraint(Sketcher.Constraint("Coincident", 3, 2, 0, 1))
sketch16.addConstraint(Sketcher.Constraint("Vertical", 0))
sketch16.addConstraint(Sketcher.Constraint("Horizontal", 1))
sketch16.addConstraint(Sketcher.Constraint("Vertical", 2))
sketch16.addConstraint(Sketcher.Constraint("Horizontal", 3))
sketch16.addConstraint(Sketcher.Constraint("DistanceX", 1, 1, 1, 2, 23.285254))
sketch16.addConstraint(Sketcher.Constraint("DistanceY", 0, 2, 0, 1, 36.187442))
sketch16.addConstraint(Sketcher.Constraint("DistanceX", 0, 2, -1, 1, 566.525239))
sketch16.addConstraint(Sketcher.Constraint("DistanceY", 0, 2, -1, 1, 323.20169))
pocket12 = body.newObject("PartDesign::Pocket", "Pocket011")
pocket12.Profile = sketch16
pocket12.Length = 2

sketch17 = body.newObject("Sketcher::SketchObject", "Sketch016")
sketch17.AttachmentSupport = (doc.getObject("XZ_Plane"), [""])
sketch17.MapMode = "FlatFace"
sketch17.addGeometry(Part.LineSegment(V(-615, -275, 0), V(-615, -325, 0)), False)
sketch17.addGeometry(Part.LineSegment(V(-615, -325, 0), V(-494, -325, 0)), False)
sketch17.addGeometry(Part.LineSegment(V(-494, -325, 0), V(-494, -275, 0)), False)
sketch17.addGeometry(Part.LineSegment(V(-494, -275, 0), V(-615, -275, 0)), False)
sketch17.addConstraint(Sketcher.Constraint("Coincident", 0, 2, 1, 1))
sketch17.addConstraint(Sketcher.Constraint("Coincident", 1, 2, 2, 1))
sketch17.addConstraint(Sketcher.Constraint("Coincident", 2, 2, 3, 1))
sketch17.addConstraint(Sketcher.Constraint("Coincident", 3, 2, 0, 1))
sketch17.addConstraint(Sketcher.Constraint("Vertical", 0))
sketch17.addConstraint(Sketcher.Constraint("Horizontal", 1))
sketch17.addConstraint(Sketcher.Constraint("Vertical", 2))
sketch17.addConstraint(Sketcher.Constraint("Horizontal", 3))
sketch17.addConstraint(Sketcher.Constraint("DistanceX", 1, 1, 1, 2, 120.61171))
sketch17.addConstraint(Sketcher.Constraint("DistanceY", 0, 2, 0, 1, 50.488928))
sketch17.addConstraint(Sketcher.Constraint("DistanceX", 0, 2, -1, 1, 614.594595))
sketch17.addConstraint(Sketcher.Constraint("DistanceY", 0, 2, -1, 1, 325.135135))
pocket13 = body.newObject("PartDesign::Pocket", "Pocket012")
pocket13.Profile = sketch17
pocket13.Length = 1.75

sketch18 = body.newObject("Sketcher::SketchObject", "Sketch017")
sketch18.AttachmentSupport = (doc.getObject("XY_Plane"), [""])
sketch18.MapMode = "FlatFace"
sketch18.AttachmentOffset = App.Placement(V(0, 0, -317.135135), App.Rotation())
sketch18.addGeometry(Part.LineSegment(V(-525.6, 37.8, 0), V(-525.6, 22.8, 0)), False)
sketch18.addGeometry(Part.LineSegment(V(-525.6, 22.8, 0), V(-528.6, 22.8, 0)), False)
sketch18.addGeometry(Part.LineSegment(V(-528.6, 22.8, 0), V(-528.6, 37.8, 0)), False)
sketch18.addGeometry(Part.LineSegment(V(-528.6, 37.8, 0), V(-525.6, 37.8, 0)), False)
sketch18.addConstraint(Sketcher.Constraint("Coincident", 0, 2, 1, 1))
sketch18.addConstraint(Sketcher.Constraint("Coincident", 1, 2, 2, 1))
sketch18.addConstraint(Sketcher.Constraint("Coincident", 2, 2, 3, 1))
sketch18.addConstraint(Sketcher.Constraint("Coincident", 3, 2, 0, 1))
sketch18.addConstraint(Sketcher.Constraint("Vertical", 0))
sketch18.addConstraint(Sketcher.Constraint("Horizontal", 1))
sketch18.addConstraint(Sketcher.Constraint("Vertical", 2))
sketch18.addConstraint(Sketcher.Constraint("Horizontal", 3))
sketch18.addConstraint(Sketcher.Constraint("DistanceX", 1, 2, 1, 1, 3.0))
sketch18.addConstraint(Sketcher.Constraint("DistanceY", 0, 2, 0, 1, 15.0))
sketch18.addConstraint(Sketcher.Constraint("DistanceY", -1, 1, 0, 2, 22.8))
sketch18.addConstraint(Sketcher.Constraint("DistanceX", 0, 2, -1, 1, 525.594595))
pad5 = body.newObject("PartDesign::Pad", "Pad004")
pad5.Profile = sketch18
pad5.Length = 1.5
pad5.Reversed = True

sketch19 = body.newObject("Sketcher::SketchObject", "Sketch018")
sketch19.AttachmentSupport = (doc.getObject("XZ_Plane"), [""])
sketch19.MapMode = "FlatFace"
sketch19.AttachmentOffset = App.Placement(V(0, 0, -15), App.Rotation())
sketch19.addGeometry(Part.LineSegment(V(-494.6, -280.1, 0), V(-612.6, -280.1, 0)), False)
sketch19.addGeometry(Part.LineSegment(V(-612.6, -280.1, 0), V(-612.6, -315.1, 0)), False)
sketch19.addGeometry(Part.LineSegment(V(-612.6, -315.1, 0), V(-614.6, -315.1, 0)), False)
sketch19.addGeometry(Part.LineSegment(V(-614.6, -315.1, 0), V(-614.6, -278.1, 0)), False)
sketch19.addGeometry(Part.LineSegment(V(-614.6, -278.1, 0), V(-494.6, -278.1, 0)), False)
sketch19.addGeometry(Part.LineSegment(V(-494.6, -278.1, 0), V(-494.6, -280.1, 0)), False)
sketch19.addConstraint(Sketcher.Constraint("Coincident", 0, 2, 1, 1))
sketch19.addConstraint(Sketcher.Constraint("Coincident", 1, 2, 2, 1))
sketch19.addConstraint(Sketcher.Constraint("Coincident", 2, 2, 3, 1))
sketch19.addConstraint(Sketcher.Constraint("Coincident", 3, 2, 4, 1))
sketch19.addConstraint(Sketcher.Constraint("Coincident", 4, 2, 5, 1))
sketch19.addConstraint(Sketcher.Constraint("Coincident", 5, 2, 0, 1))
sketch19.addConstraint(Sketcher.Constraint("Horizontal", 0))
sketch19.addConstraint(Sketcher.Constraint("Vertical", 1))
sketch19.addConstraint(Sketcher.Constraint("Horizontal", 2))
sketch19.addConstraint(Sketcher.Constraint("Vertical", 3))
sketch19.addConstraint(Sketcher.Constraint("Horizontal", 4))
sketch19.addConstraint(Sketcher.Constraint("Vertical", 5))
sketch19.addConstraint(Sketcher.Constraint("Equal", 2, 5))
sketch19.addConstraint(Sketcher.Constraint("DistanceX", 0, 2, 0, 1, 118.0))
sketch19.addConstraint(Sketcher.Constraint("DistanceX", 2, 2, 2, 1, 2.0))
sketch19.addConstraint(Sketcher.Constraint("DistanceY", 1, 2, 1, 1, 35.0))
sketch19.addConstraint(Sketcher.Constraint("DistanceX", 0, 2, -1, 1, 612.594595))
sketch19.addConstraint(Sketcher.Constraint("DistanceY", 0, 2, -1, 1, 280.135135))
pocket14 = body.newObject("PartDesign::Pocket", "Pocket013")
pocket14.Profile = sketch19
pocket14.Length = 2
pocket14.Reversed = True

sketch20 = body.newObject("Sketcher::SketchObject", "Sketch019")
sketch20.AttachmentSupport = (doc.getObject("XZ_Plane"), [""])
sketch20.MapMode = "FlatFace"
sketch20.AttachmentOffset = App.Placement(V(0, 0, -12.75), App.Rotation())
sketch20.addGeometry(Part.LineSegment(V(-559.1, -309.1, 0), V(-559.1, -317.1, 0)), False)
sketch20.addGeometry(Part.LineSegment(V(-559.1, -317.1, 0), V(-550.1, -317.1, 0)), False)
sketch20.addGeometry(Part.LineSegment(V(-550.1, -317.1, 0), V(-550.1, -309.1, 0)), False)
sketch20.addGeometry(Part.LineSegment(V(-550.1, -309.1, 0), V(-559.1, -309.1, 0)), False)
sketch20.addGeometry(Part.Circle(V(-554.6, -313.1, 0), V(0, 0, 1), 2.2), False)
sketch20.addConstraint(Sketcher.Constraint("Coincident", 0, 2, 1, 1))
sketch20.addConstraint(Sketcher.Constraint("Coincident", 1, 2, 2, 1))
sketch20.addConstraint(Sketcher.Constraint("Coincident", 2, 2, 3, 1))
sketch20.addConstraint(Sketcher.Constraint("Coincident", 3, 2, 0, 1))
sketch20.addConstraint(Sketcher.Constraint("Vertical", 0))
sketch20.addConstraint(Sketcher.Constraint("Horizontal", 1))
sketch20.addConstraint(Sketcher.Constraint("Vertical", 2))
sketch20.addConstraint(Sketcher.Constraint("Horizontal", 3))
sketch20.addConstraint(Sketcher.Constraint("Diameter", 4, 4.4))
sketch20.addConstraint(Sketcher.Constraint("DistanceX", 1, 1, 1, 2, 9.0))
sketch20.addConstraint(Sketcher.Constraint("DistanceY", 0, 2, 0, 1, 8.0))
sketch20.addConstraint(Sketcher.Constraint("DistanceY", 0, 2, 4, 3, 4.0))
sketch20.addConstraint(Sketcher.Constraint("DistanceX", 0, 2, 4, 3, 4.5))
sketch20.addConstraint(Sketcher.Constraint("DistanceX", 4, 3, -1, 1, 554.594595))
sketch20.addConstraint(Sketcher.Constraint("DistanceY", 4, 3, -1, 1, 313.135135))
pad6 = body.newObject("PartDesign::Pad", "Pad005")
pad6.Profile = sketch20
pad6.Length = 11

sketch21 = body.newObject("Sketcher::SketchObject", "Sketch020")
sketch21.AttachmentSupport = (doc.getObject("YZ_Plane"), [""])
sketch21.MapMode = "FlatFace"
sketch21.AttachmentOffset = App.Placement(V(0, 0, -494.594595), App.Rotation())
sketch21.addGeometry(Part.Circle(V(10, -298.1, 0), V(0, 0, 1), 2.2), False)
sketch21.addConstraint(Sketcher.Constraint("Diameter", 0, 4.4))
sketch21.addConstraint(Sketcher.Constraint("DistanceX", -1, 1, 0, 3, 10.0))
sketch21.addConstraint(Sketcher.Constraint("DistanceY", 0, 3, -1, 1, 298.135135))
pocket15 = body.newObject("PartDesign::Pocket", "Pocket014")
pocket15.Profile = sketch21
pocket15.Length = 5
body2 = doc.addObject("PartDesign::Body", "Body001")

sketch22 = body2.newObject("Sketcher::SketchObject", "Sketch021")
sketch22.AttachmentSupport = (doc.getObject("XY_Plane001"), [""])
sketch22.MapMode = "FlatFace"
sketch22.AttachmentOffset = App.Placement(V(0, 0, -278.135135), App.Rotation())
sketch22.addGeometry(Part.LineSegment(V(-604, 13, 0), V(-604, 2, 0)), False)
sketch22.addGeometry(Part.LineSegment(V(-604, 2, 0), V(-581, 2, 0)), False)
sketch22.addGeometry(Part.LineSegment(V(-581, 2, 0), V(-581, 13, 0)), False)
sketch22.addGeometry(Part.LineSegment(V(-581, 13, 0), V(-604, 13, 0)), False)
sketch22.addConstraint(Sketcher.Constraint("Coincident", 0, 2, 1, 1))
sketch22.addConstraint(Sketcher.Constraint("Coincident", 1, 2, 2, 1))
sketch22.addConstraint(Sketcher.Constraint("Coincident", 2, 2, 3, 1))
sketch22.addConstraint(Sketcher.Constraint("Coincident", 3, 2, 0, 1))
sketch22.addConstraint(Sketcher.Constraint("Vertical", 0))
sketch22.addConstraint(Sketcher.Constraint("Horizontal", 1))
sketch22.addConstraint(Sketcher.Constraint("Vertical", 2))
sketch22.addConstraint(Sketcher.Constraint("Horizontal", 3))
sketch22.addConstraint(Sketcher.Constraint("DistanceX", 1, 1, 1, 2, 23.0))
sketch22.addConstraint(Sketcher.Constraint("DistanceY", 0, 2, 0, 1, 11.5))
sketch22.addConstraint(Sketcher.Constraint("DistanceY", -1, 1, 0, 2, 1.75))
sketch22.addConstraint(Sketcher.Constraint("DistanceX", 0, 2, -1, 1, 604.094595))
pad7 = body2.newObject("PartDesign::Pad", "Pad006")
pad7.Profile = sketch22
pad7.Length = 1
pad7.Reversed = True

doc.recompute()
